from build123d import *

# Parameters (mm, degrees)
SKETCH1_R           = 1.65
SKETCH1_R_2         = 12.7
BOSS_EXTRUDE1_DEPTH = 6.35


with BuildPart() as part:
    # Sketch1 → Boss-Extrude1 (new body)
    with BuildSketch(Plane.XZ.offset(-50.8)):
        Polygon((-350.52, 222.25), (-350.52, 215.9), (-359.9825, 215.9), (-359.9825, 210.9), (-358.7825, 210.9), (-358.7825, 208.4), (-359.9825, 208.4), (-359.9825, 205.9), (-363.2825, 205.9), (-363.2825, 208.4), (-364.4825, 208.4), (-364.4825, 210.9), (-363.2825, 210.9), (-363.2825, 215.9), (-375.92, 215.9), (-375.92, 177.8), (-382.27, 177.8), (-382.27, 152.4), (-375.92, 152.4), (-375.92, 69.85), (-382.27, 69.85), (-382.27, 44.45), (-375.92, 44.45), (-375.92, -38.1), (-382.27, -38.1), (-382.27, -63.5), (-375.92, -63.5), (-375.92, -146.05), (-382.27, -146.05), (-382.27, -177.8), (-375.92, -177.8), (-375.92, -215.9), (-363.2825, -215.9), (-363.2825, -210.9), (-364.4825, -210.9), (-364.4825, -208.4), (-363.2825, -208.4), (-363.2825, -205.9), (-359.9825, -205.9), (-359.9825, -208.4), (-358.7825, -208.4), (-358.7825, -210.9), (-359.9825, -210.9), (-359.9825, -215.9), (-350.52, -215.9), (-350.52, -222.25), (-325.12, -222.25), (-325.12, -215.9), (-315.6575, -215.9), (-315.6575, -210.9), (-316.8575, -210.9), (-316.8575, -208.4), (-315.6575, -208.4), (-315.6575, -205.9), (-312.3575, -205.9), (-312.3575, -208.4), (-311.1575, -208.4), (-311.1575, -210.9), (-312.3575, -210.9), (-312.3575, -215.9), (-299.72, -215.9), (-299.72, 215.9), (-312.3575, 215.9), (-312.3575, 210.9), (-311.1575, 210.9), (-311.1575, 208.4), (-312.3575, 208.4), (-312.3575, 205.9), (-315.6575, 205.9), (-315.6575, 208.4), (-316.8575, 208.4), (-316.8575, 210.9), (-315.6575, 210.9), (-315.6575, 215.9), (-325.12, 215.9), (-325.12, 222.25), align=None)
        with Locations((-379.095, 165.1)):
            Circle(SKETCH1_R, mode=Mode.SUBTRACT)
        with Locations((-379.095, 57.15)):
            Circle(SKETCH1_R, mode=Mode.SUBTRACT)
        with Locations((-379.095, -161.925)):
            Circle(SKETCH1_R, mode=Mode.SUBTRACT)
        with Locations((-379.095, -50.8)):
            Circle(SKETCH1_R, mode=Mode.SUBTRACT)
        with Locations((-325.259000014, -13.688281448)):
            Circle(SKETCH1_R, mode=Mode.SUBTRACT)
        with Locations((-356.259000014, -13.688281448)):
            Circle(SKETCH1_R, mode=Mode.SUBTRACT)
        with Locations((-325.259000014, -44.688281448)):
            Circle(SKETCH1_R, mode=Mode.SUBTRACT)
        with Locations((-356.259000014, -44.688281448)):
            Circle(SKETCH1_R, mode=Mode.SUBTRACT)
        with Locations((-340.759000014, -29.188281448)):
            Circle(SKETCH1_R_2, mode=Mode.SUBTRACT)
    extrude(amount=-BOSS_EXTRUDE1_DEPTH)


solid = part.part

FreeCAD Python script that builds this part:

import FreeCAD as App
import Part
import Sketcher
from FreeCAD import Vector
Q = App.Units.Quantity


def add_polygon(sketch, points):
    """Adds a closed chain of lines whose ends are joined by coincident constraints."""
    first, n = sketch.GeometryCount, len(points)
    for a, b in zip(points, points[1:] + points[:1]):
        sketch.addGeometry(Part.LineSegment(App.Vector(*a, 0), App.Vector(*b, 0)), False)
    for i in range(n):
        sketch.addConstraint(Sketcher.Constraint("Coincident", first + i, 2, first + (i + 1) % n, 1))

doc = App.newDocument("Part")
body = doc.addObject("PartDesign::Body", "Body")

sketch1 = body.newObject("Sketcher::SketchObject", "Sketch")
sketch1.AttachmentSupport = (doc.getObject("XZ_Plane"), [""])
sketch1.MapMode = "FlatFace"
sketch1.AttachmentOffset = App.Placement(Vector(0, 0, -2 * 25.4), App.Rotation())
add_polygon(sketch1, [(-350.5, 222.2), (-350.5, 215.9), (-360, 215.9), (-360, 210.9), (-358.8, 210.9), (-358.8, 208.4), (-360, 208.4), (-360, 205.9), (-363.3, 205.9), (-363.3, 208.4), (-364.5, 208.4), (-364.5, 210.9), (-363.3, 210.9), (-363.3, 215.9), (-375.9, 215.9), (-375.9, 177.8), (-382.3, 177.8), (-382.3, 152.4), (-375.9, 152.4), (-375.9, 69.8), (-382.3, 69.8), (-382.3, 44.5), (-375.9, 44.5), (-375.9, -38.1), (-382.3, -38.1), (-382.3, -63.5), (-375.9, -63.5), (-375.9, -146.1), (-382.3, -146.1), (-382.3, -177.8), (-375.9, -177.8), (-375.9, -215.9), (-363.3, -215.9), (-363.3, -210.9), (-364.5, -210.9), (-364.5, -208.4), (-363.3, -208.4), (-363.3, -205.9), (-360, -205.9), (-360, -208.4), (-358.8, -208.4), (-358.8, -210.9), (-360, -210.9), (-360, -215.9), (-350.5, -215.9), (-350.5, -222.2), (-325.1, -222.2), (-325.1, -215.9), (-315.7, -215.9), (-315.7, -210.9), (-316.9, -210.9), (-316.9, -208.4), (-315.7, -208.4), (-315.7, -205.9), (-312.4, -205.9), (-312.4, -208.4), (-311.2, -208.4), (-311.2, -210.9), (-312.4, -210.9), (-312.4, -215.9), (-299.7, -215.9), (-299.7, 215.9), (-312.4, 215.9), (-312.4, 210.9), (-311.2, 210.9), (-311.2, 208.4), (-312.4, 208.4), (-312.4, 205.9), (-315.7, 205.9), (-315.7, 208.4), (-316.9, 208.4), (-316.9, 210.9), (-315.7, 210.9), (-315.7, 215.9), (-325.1, 215.9), (-325.1, 222.2)])
sketch1.addGeometry(Part.Circle(Vector(-379.1, -161.9, 0), Vector(0, 0, 1), 1.6), False)
sketch1.addGeometry(Part.Circle(Vector(-379.1, -50.8, 0), Vector(0, 0, 1), 1.6), False)
sketch1.addGeometry(Part.Circle(Vector(-356.3, -44.7, 0), Vector(0, 0, 1), 1.6), False)
sketch1.addGeometry(Part.Circle(Vector(-356.3, -13.7, 0), Vector(0, 0, 1), 1.6), False)
sketch1.addGeometry(Part.Circle(Vector(-340.8, -29.2, 0), Vector(0, 0, 1), 12.7), False)
sketch1.addGeometry(Part.Circle(Vector(-325.3, -44.7, 0), Vector(0, 0, 1), 1.6), False)
sketch1.addGeometry(Part.Circle(Vector(-325.3, -13.7, 0), Vector(0, 0, 1), 1.6), False)
sketch1.addGeometry(Part.Circle(Vector(-379.1, 57.1, 0), Vector(0, 0, 1), 1.6), False)
sketch1.addGeometry(Part.Circle(Vector(-379.1, 165.1, 0), Vector(0, 0, 1), 1.6), False)
sketch1.addConstraint([
    Sketcher.Constraint("Vertical", 0),
    Sketcher.Constraint("Horizontal", 1),
    Sketcher.Constraint("Vertical", 2),
    Sketcher.Constraint("Horizontal", 3),
    Sketcher.Constraint("Vertical", 4),
    Sketcher.Constraint("Horizontal", 5),
    Sketcher.Constraint("Vertical", 6),
    Sketcher.Constraint("Horizontal", 7),
    Sketcher.Constraint("Vertical", 8),
    Sketcher.Constraint("Horizontal", 9),
    Sketcher.Constraint("Vertical", 10),
    Sketcher.Constraint("Horizontal", 11),
    Sketcher.Constraint("Vertical", 12),
    Sketcher.Constraint("Horizontal", 13),
    Sketcher.Constraint("Vertical", 14),
    Sketcher.Constraint("Horizontal", 15),
    Sketcher.Constraint("Vertical", 16),
    Sketcher.Constraint("Horizontal", 17),
    Sketcher.Constraint("Vertical", 18),
    Sketcher.Constraint("Horizontal", 19),
    Sketcher.Constraint("Vertical", 20),
    Sketcher.Constraint("Horizontal", 21),
    Sketcher.Constraint("Vertical", 22),
    Sketcher.Constraint("Horizontal", 23),
    Sketcher.Constraint("Vertical", 24),
    Sketcher.Constraint("Horizontal", 25),
    Sketcher.Constraint("Vertical", 26),
    Sketcher.Constraint("Horizontal", 27),
    Sketcher.Constraint("Vertical", 28),
    Sketcher.Constraint("Horizontal", 29),
    Sketcher.Constraint("Vertical", 30),
    Sketcher.Constraint("Horizontal", 31),
    Sketcher.Constraint("Vertical", 32),
    Sketcher.Constraint("Horizontal", 33),
    Sketcher.Constraint("Vertical", 34),
    Sketcher.Constraint("Horizontal", 35),
    Sketcher.Constraint("Vertical", 36),
    Sketcher.Constraint("Horizontal", 37),
    Sketcher.Constraint("Vertical", 38),
    Sketcher.Constraint("Horizontal", 39),
    Sketcher.Constraint("Vertical", 40),
    Sketcher.Constraint("Horizontal", 41),
    Sketcher.Constraint("Vertical", 42),
    Sketcher.Constraint("Horizontal", 43),
    Sketcher.Constraint("Vertical", 44),
    Sketcher.Constraint("Horizontal", 45),
    Sketcher.Constraint("Vertical", 46),
    Sketcher.Constraint("Horizontal", 47),
    Sketcher.Constraint("Vertical", 48),
    Sketcher.Constraint("Horizontal", 49),
    Sketcher.Constraint("Vertical", 50),
    Sketcher.Constraint("Horizontal", 51),
    Sketcher.Constraint("Vertical", 52),
    Sketcher.Constraint("Horizontal", 53),
    Sketcher.Constraint("Vertical", 54),
    Sketcher.Constraint("Horizontal", 55),
    Sketcher.Constraint("Vertical", 56),
    Sketcher.Constraint("Horizontal", 57),
    Sketcher.Constraint("Vertical", 58),
    Sketcher.Constraint("Horizontal", 59),
    Sketcher.Constraint("Vertical", 60),
    Sketcher.Constraint("Horizontal", 61),
    Sketcher.Constraint("Vertical", 62),
    Sketcher.Constraint("Horizontal", 63),
    Sketcher.Constraint("Vertical", 64),
    Sketcher.Constraint("Horizontal", 65),
    Sketcher.Constraint("Vertical", 66),
    Sketcher.Constraint("Horizontal", 67),
    Sketcher.Constraint("Vertical", 68),
    Sketcher.Constraint("Horizontal", 69),
    Sketcher.Constraint("Vertical", 70),
    Sketcher.Constraint("Horizontal", 71),
    Sketcher.Constraint("Vertical", 72),
    Sketcher.Constraint("Horizontal", 73),
    Sketcher.Constraint("Vertical", 74),
    Sketcher.Constraint("Horizontal", 75),
    Sketcher.Constraint("Equal", 76, 77),
    Sketcher.Constraint("Equal", 77, 78),
    Sketcher.Constraint("Equal", 78, 79),
    Sketcher.Constraint("Equal", 79, 81),
    Sketcher.Constraint("Equal", 81, 82),
    Sketcher.Constraint("Equal", 82, 83),
    Sketcher.Constraint("Equal", 83, 84),
    Sketcher.Constraint("Symmetric", 15, 2, 28, 2, -1),
    Sketcher.Constraint("Symmetric", 13, 2, 30, 2, -1),
    Sketcher.Constraint("Symmetric", 11, 2, 32, 2, -1),
    Sketcher.Constraint("Symmetric", 9, 2, 34, 2, -1),
    Sketcher.Constraint("Symmetric", 7, 2, 36, 2, -1),
    Sketcher.Constraint("Symmetric", 5, 2, 38, 2, -1),
    Sketcher.Constraint("Symmetric", 3, 2, 40, 2, -1),
    Sketcher.Constraint("Symmetric", 1, 2, 42, 2, -1),
    Sketcher.Constraint("Symmetric", 58, 2, 61, 2, -1),
    Sketcher.Constraint("Symmetric", 56, 2, 63, 2, -1),
    Sketcher.Constraint("Symmetric", 54, 2, 65, 2, -1),
    Sketcher.Constraint("Symmetric", 52, 2, 67, 2, -1),
    Sketcher.Constraint("Symmetric", 50, 2, 69, 2, -1),
    Sketcher.Constraint("Symmetric", 48, 2, 71, 2, -1),
    Sketcher.Constraint("Symmetric", 46, 2, 73, 2, -1),
    Sketcher.Constraint("Symmetric", 44, 2, 75, 2, -1),
    Sketcher.Constraint("Horizontal", 78, 3, 81, 3),
    Sketcher.Constraint("Horizontal", 79, 3, 82, 3),
    Sketcher.Constraint("Horizontal", 5, 2, 8, 2),
    Sketcher.Constraint("Horizontal", 3, 2, 10, 2),
    Sketcher.Constraint("Horizontal", 1, 2, 12, 2),
    Sketcher.Constraint("Horizontal", 43, 2, 46, 2),
    Sketcher.Constraint("Horizontal", 41, 2, 48, 2),
    Sketcher.Constraint("Horizontal", 39, 2, 50, 2),
    Sketcher.Constraint("Horizontal", 37, 2, 52, 2),
    Sketcher.Constraint("Horizontal", 51, 2, 54, 2),
    Sketcher.Constraint("Horizontal", 49, 2, 56, 2),
    Sketcher.Constraint("Horizontal", 47, 2, 58, 2),
    Sketcher.Constraint("Vertical", 76, 3, 77, 3),
    Sketcher.Constraint("Vertical", 78, 3, 79, 3),
    Sketcher.Constraint("Vertical", 81, 3, 82, 3),
    Sketcher.Constraint("Vertical", 77, 3, 83, 3),
    Sketcher.Constraint("Vertical", 83, 3, 84, 3),
    Sketcher.Constraint("Vertical", 2, 2, 5, 2),
    Sketcher.Constraint("Vertical", 8, 2, 11, 2),
    Sketcher.Constraint("Vertical", 14, 2, 17, 2),
    Sketcher.Constraint("Vertical", 16, 2, 19, 2),
    Sketcher.Constraint("Vertical", 18, 2, 21, 2),
    Sketcher.Constraint("Vertical", 20, 2, 23, 2),
    Sketcher.Constraint("Vertical", 22, 2, 25, 2),
    Sketcher.Constraint("Vertical", 48, 2, 51, 2),
    Sketcher.Constraint("Vertical", 54, 2, 57, 2),
    Sketcher.Constraint("Equal", 5, 9),
    Sketcher.Constraint("Equal", 43, 47),
    Sketcher.Constraint("Equal", 41, 49),
    Sketcher.Constraint("Equal", 37, 53),
    Sketcher.Constraint("Equal", 51, 55),
    Sketcher.Constraint("Equal", 31, 59),
    Sketcher.Constraint("Equal", 29, 0),
    Sketcher.Constraint("Equal", 4, 6),
    Sketcher.Constraint("Equal", 75, 16),
    Sketcher.Constraint("Equal", 16, 20),
    Sketcher.Constraint("Equal", 18, 22),
    Sketcher.Constraint("Equal", 20, 24),
    Sketcher.Constraint("Equal", 22, 26),
    Sketcher.Constraint("Diameter", 80, Q("1 in")),
    Sketcher.Constraint("DistanceX", 45, 1, 45, 2, Q("1 in")),
    Sketcher.Constraint("DistanceY", 60, 1, 60, 2, Q("17 in")),
    Sketcher.Constraint("DistanceY", 14, 2, 14, 1, Q("1.5 in")),
    Sketcher.Constraint("DistanceY", 77, 3, -1, 1, Q("2 in")),
    Sketcher.Constraint("DistanceX", 15, 2, 15, 1, Q("0.25 in")),
    Sketcher.Constraint("DistanceY", 18, 2, 18, 1, Q("3.25 in")),
    Sketcher.Constraint("DistanceY", -1, 1, 84, 3, Q("6.5 in")),
    Sketcher.Constraint("DistanceX", 0, 2, -1, 1, Q("13.8 in")),
    Sketcher.Constraint("DistanceX", 13, 2, -1, 1, Q("14.8 in")),
    Sketcher.Constraint("Diameter", 76, Q("3.3 mm")),
    Sketcher.Constraint("DistanceY", -1, 1, 83, 3, Q("2.25 in")),
    Sketcher.Constraint("DistanceX", 76, 3, -1, 1, Q("14.925 in")),
    Sketcher.Constraint("DistanceY", 76, 3, -1, 1, Q("6.375 in")),
    Sketcher.Constraint("DistanceX", 1, 2, 1, 1, Q("9.4625 mm")),
    Sketcher.Constraint("DistanceX", 3, 1, 3, 2, Q("1.2 mm")),
    Sketcher.Constraint("DistanceX", 7, 2, 7, 1, Q("3.3 mm")),
    Sketcher.Constraint("DistanceY", 2, 2, 2, 1, Q("5 mm")),
    Sketcher.Constraint("DistanceY", 4, 2, 4, 1, Q("2.5 mm")),
    Sketcher.Constraint("DistanceX", 78, 3, -1, 1, Q("356.259 mm")),
    Sketcher.Constraint("DistanceX", 80, 3, -1, 1, Q("340.759 mm")),
    Sketcher.Constraint("DistanceX", 81, 3, -1, 1, Q("325.259 mm")),
    Sketcher.Constraint("DistanceY", 78, 3, -1, 1, Q("44.688281 mm")),
    Sketcher.Constraint("DistanceY", 79, 3, -1, 1, Q("13.688281 mm")),
    Sketcher.Constraint("DistanceY", 80, 3, -1, 1, Q("29.188281 mm")),
])
pad1 = body.newObject("PartDesign::Pad", "Pad")
pad1.Profile = sketch1
pad1.Length = Q("0.25 in")
pad1.Reversed = True

doc.recompute()
